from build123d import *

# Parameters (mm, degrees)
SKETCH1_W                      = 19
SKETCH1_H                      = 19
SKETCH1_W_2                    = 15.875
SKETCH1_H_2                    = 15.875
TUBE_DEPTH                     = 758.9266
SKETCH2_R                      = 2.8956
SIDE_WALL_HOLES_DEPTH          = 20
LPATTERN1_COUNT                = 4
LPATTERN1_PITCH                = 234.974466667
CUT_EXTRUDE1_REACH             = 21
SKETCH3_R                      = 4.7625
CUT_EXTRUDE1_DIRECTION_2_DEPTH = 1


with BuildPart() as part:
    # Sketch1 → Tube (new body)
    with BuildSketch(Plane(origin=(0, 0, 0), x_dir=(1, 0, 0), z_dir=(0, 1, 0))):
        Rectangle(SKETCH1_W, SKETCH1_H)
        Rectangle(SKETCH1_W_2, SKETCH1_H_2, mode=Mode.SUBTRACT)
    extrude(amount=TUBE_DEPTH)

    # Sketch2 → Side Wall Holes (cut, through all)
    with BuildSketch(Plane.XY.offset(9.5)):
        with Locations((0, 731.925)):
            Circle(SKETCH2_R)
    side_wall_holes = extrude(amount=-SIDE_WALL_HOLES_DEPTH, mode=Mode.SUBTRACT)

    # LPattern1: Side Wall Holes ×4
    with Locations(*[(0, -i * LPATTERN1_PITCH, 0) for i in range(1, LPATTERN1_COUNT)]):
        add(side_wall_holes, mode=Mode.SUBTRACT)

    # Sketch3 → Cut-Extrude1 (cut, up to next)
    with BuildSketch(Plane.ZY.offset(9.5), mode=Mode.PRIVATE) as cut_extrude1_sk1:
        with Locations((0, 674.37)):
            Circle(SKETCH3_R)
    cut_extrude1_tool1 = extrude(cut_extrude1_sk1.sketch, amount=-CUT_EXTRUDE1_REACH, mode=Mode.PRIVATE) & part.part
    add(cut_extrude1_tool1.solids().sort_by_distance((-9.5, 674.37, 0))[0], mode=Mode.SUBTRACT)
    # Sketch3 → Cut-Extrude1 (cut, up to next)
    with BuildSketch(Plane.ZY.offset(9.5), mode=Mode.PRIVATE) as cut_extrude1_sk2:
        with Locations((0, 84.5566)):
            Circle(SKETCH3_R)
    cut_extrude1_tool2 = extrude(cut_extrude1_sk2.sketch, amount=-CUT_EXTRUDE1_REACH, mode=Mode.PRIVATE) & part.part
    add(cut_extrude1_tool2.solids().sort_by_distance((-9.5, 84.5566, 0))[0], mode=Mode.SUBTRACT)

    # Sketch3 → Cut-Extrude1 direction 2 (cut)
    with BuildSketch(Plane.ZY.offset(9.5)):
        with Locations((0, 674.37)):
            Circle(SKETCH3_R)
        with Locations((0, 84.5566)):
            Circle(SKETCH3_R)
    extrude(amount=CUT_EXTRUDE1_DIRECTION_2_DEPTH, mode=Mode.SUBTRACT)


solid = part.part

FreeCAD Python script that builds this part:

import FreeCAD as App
import Part
import Sketcher
Q = App.Units.Quantity

doc = App.newDocument("Part")
body = doc.addObject("PartDesign::Body", "Body")

# Sketch on XZ plane
sketch1 = body.newObject("Sketcher::SketchObject", "Sketch")
sketch1.AttachmentSupport = (doc.getObject("XZ_Plane"), [""])
sketch1.MapMode = "FlatFace"
sketch1.addGeometry([
    Part.LineSegment(App.Vector(-10, -10, 0), App.Vector(-10, 10, 0)),  # 0
    Part.LineSegment(App.Vector(-10, 10, 0), App.Vector(10, 10, 0)),  # 1
    Part.LineSegment(App.Vector(10, 10, 0), App.Vector(10, -10, 0)),  # 2
    Part.LineSegment(App.Vector(10, -10, 0), App.Vector(-10, -10, 0)),  # 3
    Part.LineSegment(App.Vector(8, 8, 0), App.Vector(-8, 8, 0)),  # 4
    Part.LineSegment(App.Vector(-8, 8, 0), App.Vector(-8, -8, 0)),  # 5
    Part.LineSegment(App.Vector(-8, -8, 0), App.Vector(8, -8, 0)),  # 6
    Part.LineSegment(App.Vector(8, -8, 0), App.Vector(8, 8, 0)),  # 7
], False)
sketch1.addConstraint([
    Sketcher.Constraint("Coincident", 0, 2, 1, 1),
    Sketcher.Constraint("Coincident", 1, 2, 2, 1),
    Sketcher.Constraint("Coincident", 2, 2, 3, 1),
    Sketcher.Constraint("Coincident", 3, 2, 0, 1),
    Sketcher.Constraint("Coincident", 4, 2, 5, 1),
    Sketcher.Constraint("Coincident", 5, 2, 6, 1),
    Sketcher.Constraint("Coincident", 6, 2, 7, 1),
    Sketcher.Constraint("Coincident", 7, 2, 4, 1),
    Sketcher.Constraint("Vertical", 0),
    Sketcher.Constraint("Horizontal", 1),
    Sketcher.Constraint("Vertical", 2),
    Sketcher.Constraint("Horizontal", 3),
    Sketcher.Constraint("Horizontal", 4),
    Sketcher.Constraint("Vertical", 5),
    Sketcher.Constraint("Horizontal", 6),
    Sketcher.Constraint("Vertical", 7),
    Sketcher.Constraint("Symmetric", 0, 2, 2, 2, -1, 1),
    Sketcher.Constraint("Symmetric", 4, 2, 6, 2, -1, 1),
    Sketcher.Constraint("Equal", 3, 0),
    Sketcher.Constraint("Equal", 6, 5),
    Sketcher.Constraint("DistanceX", 4, 2, 4, 1, Q("0.625 in")),
    Sketcher.Constraint("DistanceX", 1, 1, 1, 2, 19.0),
])
pad1 = body.newObject("PartDesign::Pad", "Pad")
pad1.Profile = sketch1
pad1.Length = Q("29.879 in")
pad1.Reversed = True

# Sketch on XY plane
sketch2 = body.newObject("Sketcher::SketchObject", "Sketch001")
sketch2.AttachmentSupport = (doc.getObject("XY_Plane"), [""])
sketch2.MapMode = "FlatFace"
sketch2.AttachmentOffset = App.Placement(App.Vector(0, 0, 9.5), App.Rotation())
sketch2.addGeometry(Part.Circle(App.Vector(0, 731.9, 0), App.Vector(0, 0, 1), 2.9), False)
sketch2.addConstraint([
    Sketcher.Constraint("PointOnObject", 0, 3, -2),
    Sketcher.Constraint("Diameter", 0, Q("0.228 in")),
    Sketcher.Constraint("DistanceY", -1, 1, 0, 3, 731.925),
])
pocket1 = body.newObject("PartDesign::Pocket", "Pocket")
pocket1.Profile = sketch2
pocket1.Type = "ThroughAll"
doc.recompute()

linearpattern = body.newObject("PartDesign::LinearPattern", "LinearPattern")
linearpattern.Originals = [pocket1]
linearpattern.Direction = (doc.getObject("Y_Axis"), [""])
linearpattern.Mode = "offset"
linearpattern.Offset = 234.974467
linearpattern.Occurrences = 4
linearpattern.Reversed = True
body.Tip = linearpattern

# Sketch on YZ plane
sketch3 = body.newObject("Sketcher::SketchObject", "Sketch002")
sketch3.AttachmentSupport = (doc.getObject("YZ_Plane"), [""])
sketch3.MapMode = "FlatFace"
sketch3.AttachmentOffset = App.Placement(App.Vector(0, 0, -9.5), App.Rotation())
sketch3.addGeometry(Part.Circle(App.Vector(674.4, 0, 0), App.Vector(0, 0, 1), 4.8), False)
sketch3.addConstraint([
    Sketcher.Constraint("PointOnObject", 0, 3, -1),
    Sketcher.Constraint("Diameter", 0, Q("0.375 in")),
    Sketcher.Constraint("DistanceX", -1, 1, 0, 3, Q("26.55 in")),
])
pocket2 = body.newObject("PartDesign::Pocket", "Pocket001")
pocket2.Profile = sketch3
pocket2.Type = "UpToFirst"
pocket2.Reversed = True

# Sketch on YZ plane
sketch4 = body.newObject("Sketcher::SketchObject", "Sketch003")
sketch4.AttachmentSupport = (doc.getObject("YZ_Plane"), [""])
sketch4.MapMode = "FlatFace"
sketch4.AttachmentOffset = App.Placement(App.Vector(0, 0, -9.5), App.Rotation())
sketch4.addGeometry(Part.Circle(App.Vector(84.6, 0, 0), App.Vector(0, 0, 1), 4.8), False)
sketch4.addConstraint([
    Sketcher.Constraint("PointOnObject", 0, 3, -1),
    Sketcher.Constraint("Diameter", 0, Q("0.375 in")),
    Sketcher.Constraint("DistanceX", -1, 1, 0, 3, Q("3.329 in")),
])
pocket3 = body.newObject("PartDesign::Pocket", "Pocket002")
pocket3.Profile = sketch4
pocket3.Type = "UpToFirst"
pocket3.Reversed = True

# Sketch on YZ plane
sketch5 = body.newObject("Sketcher::SketchObject", "Sketch004")
sketch5.AttachmentSupport = (doc.getObject("YZ_Plane"), [""])
sketch5.MapMode = "FlatFace"
sketch5.AttachmentOffset = App.Placement(App.Vector(0, 0, -9.5), App.Rotation())
sketch5.addGeometry([
    Part.Circle(App.Vector(674.4, 0, 0), App.Vector(0, 0, 1), 4.8),
    Part.Circle(App.Vector(84.6, 0, 0), App.Vector(0, 0, 1), 4.8),
], False)
sketch5.addConstraint([
    Sketcher.Constraint("Equal", 0, 1),
    Sketcher.Constraint("PointOnObject", 0, 3, -1),
    Sketcher.Constraint("PointOnObject", 1, 3, -1),
    Sketcher.Constraint("Diameter", 0, Q("0.375 in")),
    Sketcher.Constraint("DistanceX", -1, 1, 0, 3, Q("26.55 in")),
    Sketcher.Constraint("DistanceX", -1, 1, 1, 3, Q("3.329 in")),
])
pocket4 = body.newObject("PartDesign::Pocket", "Pocket003")
pocket4.Profile = sketch5
pocket4.Length = 1

doc.recompute()
